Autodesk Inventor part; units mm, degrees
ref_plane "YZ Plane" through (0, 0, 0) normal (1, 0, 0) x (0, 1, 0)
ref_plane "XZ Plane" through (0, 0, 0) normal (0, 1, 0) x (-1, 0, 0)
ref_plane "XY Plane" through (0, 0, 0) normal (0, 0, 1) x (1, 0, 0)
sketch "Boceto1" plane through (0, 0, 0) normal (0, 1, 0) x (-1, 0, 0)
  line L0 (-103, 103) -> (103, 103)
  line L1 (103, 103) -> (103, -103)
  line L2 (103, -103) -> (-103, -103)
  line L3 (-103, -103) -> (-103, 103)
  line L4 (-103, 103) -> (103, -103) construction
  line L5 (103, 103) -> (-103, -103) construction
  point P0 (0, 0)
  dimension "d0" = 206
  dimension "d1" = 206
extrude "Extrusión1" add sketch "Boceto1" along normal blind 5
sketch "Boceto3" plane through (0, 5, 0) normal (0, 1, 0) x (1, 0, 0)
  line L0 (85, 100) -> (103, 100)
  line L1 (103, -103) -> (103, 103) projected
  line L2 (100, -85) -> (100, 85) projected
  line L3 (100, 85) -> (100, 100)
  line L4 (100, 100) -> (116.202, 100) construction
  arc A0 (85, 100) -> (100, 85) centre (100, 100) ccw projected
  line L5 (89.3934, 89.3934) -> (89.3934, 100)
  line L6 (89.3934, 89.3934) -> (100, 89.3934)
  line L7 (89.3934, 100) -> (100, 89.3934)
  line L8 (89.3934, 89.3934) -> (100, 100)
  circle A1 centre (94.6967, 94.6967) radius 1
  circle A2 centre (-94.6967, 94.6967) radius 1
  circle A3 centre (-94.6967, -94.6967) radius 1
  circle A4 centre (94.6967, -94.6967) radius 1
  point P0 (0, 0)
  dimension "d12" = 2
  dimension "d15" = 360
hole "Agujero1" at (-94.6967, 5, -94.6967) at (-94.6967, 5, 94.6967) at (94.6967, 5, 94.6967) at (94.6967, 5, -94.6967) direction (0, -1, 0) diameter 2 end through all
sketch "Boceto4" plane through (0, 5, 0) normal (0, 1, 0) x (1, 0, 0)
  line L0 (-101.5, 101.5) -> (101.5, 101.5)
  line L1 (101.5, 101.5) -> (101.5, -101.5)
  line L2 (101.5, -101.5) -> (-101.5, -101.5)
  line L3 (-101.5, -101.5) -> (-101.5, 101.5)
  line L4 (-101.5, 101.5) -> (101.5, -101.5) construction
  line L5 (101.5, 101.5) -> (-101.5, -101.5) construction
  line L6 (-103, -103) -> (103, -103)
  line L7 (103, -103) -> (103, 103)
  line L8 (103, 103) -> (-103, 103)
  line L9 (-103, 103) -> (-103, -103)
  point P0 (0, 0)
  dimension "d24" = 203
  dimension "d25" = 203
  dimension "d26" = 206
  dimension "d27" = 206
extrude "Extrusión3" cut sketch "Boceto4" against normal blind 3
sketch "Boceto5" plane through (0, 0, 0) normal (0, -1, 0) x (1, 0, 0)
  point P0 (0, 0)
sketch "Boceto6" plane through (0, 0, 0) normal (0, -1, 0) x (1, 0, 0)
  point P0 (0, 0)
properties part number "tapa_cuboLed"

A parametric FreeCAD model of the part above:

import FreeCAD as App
import Part
import Sketcher


def add_polygon(sketch, points):
    """Adds a closed chain of lines whose ends are joined by coincident constraints."""
    first, n = sketch.GeometryCount, len(points)
    for a, b in zip(points, points[1:] + points[:1]):
        sketch.addGeometry(Part.LineSegment(App.Vector(*a, 0), App.Vector(*b, 0)), False)
    for i in range(n):
        sketch.addConstraint(Sketcher.Constraint("Coincident", first + i, 2, first + (i + 1) % n, 1))

doc = App.newDocument("Part")
params = doc.addObject("Spreadsheet::Sheet", "Params")
for row, (alias, value) in enumerate([
    ("sketch1_width", "206 mm"),
    ("pad1_length", "5 mm"),
    ("sketch2_diameter", "2 mm"),
    ("hole_diameter", "2 mm"),
    ("sketch3_width", "206 mm"),
    ("sketch3_width2", "203 mm"),
    ("pocket1_length", "3 mm"),
], start=1):
    params.set(f"A{row}", alias)
    params.set(f"B{row}", "=" + value)
    params.setAlias(f"B{row}", alias)

body = doc.addObject("PartDesign::Body", "Body")

# Sketch on XZ plane
sketch1 = body.newObject("Sketcher::SketchObject", "Sketch")
sketch1.AttachmentSupport = (doc.getObject("XZ_Plane"), [""])
sketch1.MapMode = "FlatFace"
add_polygon(sketch1, [(-103, 103), (103, 103), (103, -103), (-103, -103)])  # lines 0-3
sketch1.addConstraint([
    Sketcher.Constraint("Horizontal", 0),
    Sketcher.Constraint("Vertical", 1),
    Sketcher.Constraint("Horizontal", 2),
    Sketcher.Constraint("Vertical", 3),
    Sketcher.Constraint("Symmetric", 0, 2, 2, 2, -1, 1),
    Sketcher.Constraint("Equal", 2, 1),
    Sketcher.Constraint("DistanceX", 0, 1, 0, 2, 206.0),
])
sketch1.setExpression("Constraints[10]", "Params.sketch1_width")
pad1 = body.newObject("PartDesign::Pad", "Pad")
pad1.Profile = sketch1
pad1.setExpression("Length", "Params.pad1_length")
pad1.Reversed = True

# Sketch on XZ plane
sketch2 = body.newObject("Sketcher::SketchObject", "Sketch001")
sketch2.AttachmentSupport = (doc.getObject("XZ_Plane"), [""])
sketch2.MapMode = "FlatFace"
sketch2.AttachmentOffset = App.Placement(App.Vector(0, 0, -5), App.Rotation())
sketch2.addGeometry([
    Part.Circle(App.Vector(-94.7, -94.7, 0), App.Vector(0, 0, 1), 1),
    Part.Circle(App.Vector(-94.7, 94.7, 0), App.Vector(0, 0, 1), 1),
    Part.Circle(App.Vector(94.7, 94.7, 0), App.Vector(0, 0, 1), 1),
    Part.Circle(App.Vector(94.7, -94.7, 0), App.Vector(0, 0, 1), 1),
], False)
sketch2.addConstraint([
    Sketcher.Constraint("Equal", 0, 1),
    Sketcher.Constraint("Equal", 1, 2),
    Sketcher.Constraint("Equal", 2, 3),
    Sketcher.Constraint("Symmetric", 0, 3, 2, 3, -1, 1),
    Sketcher.Constraint("Symmetric", 1, 3, 3, 3, -1, 1),
    Sketcher.Constraint("Symmetric", 1, 3, 2, 3, -2),
    Sketcher.Constraint("Diameter", 0, 2.0),
    Sketcher.Constraint("DistanceX", 0, 3, -1, 1, 94.6967),
    Sketcher.Constraint("DistanceY", 0, 3, -1, 1, 94.6967),
])
sketch2.setExpression("Constraints[6]", "Params.sketch2_diameter")
doc.recompute()
hole = body.newObject("PartDesign::Hole", "Hole")
hole.Profile = sketch2
hole.ThreadType = "None"
hole.setExpression("Diameter", "Params.hole_diameter")
hole.DepthType = "ThroughAll"
hole.Reversed = True

# Sketch on XZ plane
sketch3 = body.newObject("Sketcher::SketchObject", "Sketch002")
sketch3.AttachmentSupport = (doc.getObject("XZ_Plane"), [""])
sketch3.MapMode = "FlatFace"
sketch3.AttachmentOffset = App.Placement(App.Vector(0, 0, -5), App.Rotation())
add_polygon(sketch3, [(-103, -103), (-103, 103), (103, 103), (103, -103)])  # lines 0-3
add_polygon(sketch3, [(-102, 102), (-102, -102), (102, -102), (102, 102)])  # lines 4-7
sketch3.addConstraint([
    Sketcher.Constraint("Vertical", 0),
    Sketcher.Constraint("Horizontal", 1),
    Sketcher.Constraint("Vertical", 2),
    Sketcher.Constraint("Horizontal", 3),
    Sketcher.Constraint("Vertical", 4),
    Sketcher.Constraint("Horizontal", 5),
    Sketcher.Constraint("Vertical", 6),
    Sketcher.Constraint("Horizontal", 7),
    Sketcher.Constraint("Symmetric", 0, 2, 2, 2, -1, 1),
    Sketcher.Constraint("Symmetric", 4, 2, 6, 2, -1, 1),
    Sketcher.Constraint("Equal", 3, 0),
    Sketcher.Constraint("Equal", 7, 4),
    Sketcher.Constraint("DistanceX", 1, 1, 1, 2, 206.0),
    Sketcher.Constraint("DistanceX", 5, 1, 5, 2, 203.0),
])
sketch3.setExpression("Constraints[20]", "Params.sketch3_width")
sketch3.setExpression("Constraints[21]", "Params.sketch3_width2")
pocket1 = body.newObject("PartDesign::Pocket", "Pocket")
pocket1.Profile = sketch3
pocket1.setExpression("Length", "Params.pocket1_length")
pocket1.Reversed = True

doc.recompute()
